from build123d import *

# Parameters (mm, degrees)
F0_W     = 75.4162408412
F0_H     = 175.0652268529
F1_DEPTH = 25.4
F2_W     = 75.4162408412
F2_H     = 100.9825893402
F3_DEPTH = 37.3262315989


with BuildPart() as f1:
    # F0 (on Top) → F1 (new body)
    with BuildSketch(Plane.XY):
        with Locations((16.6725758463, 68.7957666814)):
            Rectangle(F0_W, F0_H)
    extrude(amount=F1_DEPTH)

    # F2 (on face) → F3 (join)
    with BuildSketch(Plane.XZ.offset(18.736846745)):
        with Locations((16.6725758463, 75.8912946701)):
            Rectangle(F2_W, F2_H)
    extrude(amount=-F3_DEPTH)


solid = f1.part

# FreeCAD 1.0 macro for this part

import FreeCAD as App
import Part
import Sketcher
from FreeCAD import Vector
Q = App.Units.Quantity


def add_polygon(sketch, points):
    """Adds a closed chain of lines whose ends are joined by coincident constraints."""
    first, n = sketch.GeometryCount, len(points)
    for a, b in zip(points, points[1:] + points[:1]):
        sketch.addGeometry(Part.LineSegment(App.Vector(*a, 0), App.Vector(*b, 0)), False)
    for i in range(n):
        sketch.addConstraint(Sketcher.Constraint("Coincident", first + i, 2, first + (i + 1) % n, 1))

doc = App.newDocument("Part")
body = doc.addObject("PartDesign::Body", "Body")

# Sketch on XY plane
sketch1 = body.newObject("Sketcher::SketchObject", "Sketch")
sketch1.AttachmentSupport = (doc.getObject("XY_Plane"), [""])
sketch1.MapMode = "FlatFace"
add_polygon(sketch1, [(-21, 156), (-21, -19), (54, -19), (54, 156)])  # lines 0-3
sketch1.addConstraint([
    Sketcher.Constraint("Vertical", 0),
    Sketcher.Constraint("Horizontal", 1),
    Sketcher.Constraint("Vertical", 2),
    Sketcher.Constraint("Horizontal", 3),
    Sketcher.Constraint("DistanceX", 1, 1, 1, 2, Q("75.416241 mm")),
    Sketcher.Constraint("DistanceY", 0, 2, 0, 1, Q("175.065227 mm")),
    Sketcher.Constraint("DistanceY", -1, 1, 2, 2, Q("156.32838 mm")),
    Sketcher.Constraint("DistanceX", 0, 2, -1, 1, Q("21.035545 mm")),
])
pad1 = body.newObject("PartDesign::Pad", "Pad")
pad1.Profile = sketch1
pad1.Length = Q("1 in")

# Sketch on XZ plane
sketch2 = body.newObject("Sketcher::SketchObject", "Sketch001")
sketch2.AttachmentSupport = (doc.getObject("XZ_Plane"), [""])
sketch2.MapMode = "FlatFace"
sketch2.AttachmentOffset = App.Placement(Vector(0, 0, 18.736847), App.Rotation())
add_polygon(sketch2, [(-21, 126), (-21, 25), (54, 25), (54, 126)])  # lines 0-3
sketch2.addConstraint([
    Sketcher.Constraint("Vertical", 0),
    Sketcher.Constraint("Horizontal", 1),
    Sketcher.Constraint("Vertical", 2),
    Sketcher.Constraint("Horizontal", 3),
    Sketcher.Constraint("DistanceY", -1, 1, 0, 2, Q("1 in")),
    Sketcher.Constraint("DistanceX", 1, 1, 1, 2, Q("75.416241 mm")),
    Sketcher.Constraint("DistanceY", 0, 2, 0, 1, Q("100.982589 mm")),
    Sketcher.Constraint("DistanceX", 0, 2, -1, 1, Q("21.035545 mm")),
])
pad2 = body.newObject("PartDesign::Pad", "Pad001")
pad2.Profile = sketch2
pad2.Length = 37.326232
pad2.Reversed = True

doc.recompute()
